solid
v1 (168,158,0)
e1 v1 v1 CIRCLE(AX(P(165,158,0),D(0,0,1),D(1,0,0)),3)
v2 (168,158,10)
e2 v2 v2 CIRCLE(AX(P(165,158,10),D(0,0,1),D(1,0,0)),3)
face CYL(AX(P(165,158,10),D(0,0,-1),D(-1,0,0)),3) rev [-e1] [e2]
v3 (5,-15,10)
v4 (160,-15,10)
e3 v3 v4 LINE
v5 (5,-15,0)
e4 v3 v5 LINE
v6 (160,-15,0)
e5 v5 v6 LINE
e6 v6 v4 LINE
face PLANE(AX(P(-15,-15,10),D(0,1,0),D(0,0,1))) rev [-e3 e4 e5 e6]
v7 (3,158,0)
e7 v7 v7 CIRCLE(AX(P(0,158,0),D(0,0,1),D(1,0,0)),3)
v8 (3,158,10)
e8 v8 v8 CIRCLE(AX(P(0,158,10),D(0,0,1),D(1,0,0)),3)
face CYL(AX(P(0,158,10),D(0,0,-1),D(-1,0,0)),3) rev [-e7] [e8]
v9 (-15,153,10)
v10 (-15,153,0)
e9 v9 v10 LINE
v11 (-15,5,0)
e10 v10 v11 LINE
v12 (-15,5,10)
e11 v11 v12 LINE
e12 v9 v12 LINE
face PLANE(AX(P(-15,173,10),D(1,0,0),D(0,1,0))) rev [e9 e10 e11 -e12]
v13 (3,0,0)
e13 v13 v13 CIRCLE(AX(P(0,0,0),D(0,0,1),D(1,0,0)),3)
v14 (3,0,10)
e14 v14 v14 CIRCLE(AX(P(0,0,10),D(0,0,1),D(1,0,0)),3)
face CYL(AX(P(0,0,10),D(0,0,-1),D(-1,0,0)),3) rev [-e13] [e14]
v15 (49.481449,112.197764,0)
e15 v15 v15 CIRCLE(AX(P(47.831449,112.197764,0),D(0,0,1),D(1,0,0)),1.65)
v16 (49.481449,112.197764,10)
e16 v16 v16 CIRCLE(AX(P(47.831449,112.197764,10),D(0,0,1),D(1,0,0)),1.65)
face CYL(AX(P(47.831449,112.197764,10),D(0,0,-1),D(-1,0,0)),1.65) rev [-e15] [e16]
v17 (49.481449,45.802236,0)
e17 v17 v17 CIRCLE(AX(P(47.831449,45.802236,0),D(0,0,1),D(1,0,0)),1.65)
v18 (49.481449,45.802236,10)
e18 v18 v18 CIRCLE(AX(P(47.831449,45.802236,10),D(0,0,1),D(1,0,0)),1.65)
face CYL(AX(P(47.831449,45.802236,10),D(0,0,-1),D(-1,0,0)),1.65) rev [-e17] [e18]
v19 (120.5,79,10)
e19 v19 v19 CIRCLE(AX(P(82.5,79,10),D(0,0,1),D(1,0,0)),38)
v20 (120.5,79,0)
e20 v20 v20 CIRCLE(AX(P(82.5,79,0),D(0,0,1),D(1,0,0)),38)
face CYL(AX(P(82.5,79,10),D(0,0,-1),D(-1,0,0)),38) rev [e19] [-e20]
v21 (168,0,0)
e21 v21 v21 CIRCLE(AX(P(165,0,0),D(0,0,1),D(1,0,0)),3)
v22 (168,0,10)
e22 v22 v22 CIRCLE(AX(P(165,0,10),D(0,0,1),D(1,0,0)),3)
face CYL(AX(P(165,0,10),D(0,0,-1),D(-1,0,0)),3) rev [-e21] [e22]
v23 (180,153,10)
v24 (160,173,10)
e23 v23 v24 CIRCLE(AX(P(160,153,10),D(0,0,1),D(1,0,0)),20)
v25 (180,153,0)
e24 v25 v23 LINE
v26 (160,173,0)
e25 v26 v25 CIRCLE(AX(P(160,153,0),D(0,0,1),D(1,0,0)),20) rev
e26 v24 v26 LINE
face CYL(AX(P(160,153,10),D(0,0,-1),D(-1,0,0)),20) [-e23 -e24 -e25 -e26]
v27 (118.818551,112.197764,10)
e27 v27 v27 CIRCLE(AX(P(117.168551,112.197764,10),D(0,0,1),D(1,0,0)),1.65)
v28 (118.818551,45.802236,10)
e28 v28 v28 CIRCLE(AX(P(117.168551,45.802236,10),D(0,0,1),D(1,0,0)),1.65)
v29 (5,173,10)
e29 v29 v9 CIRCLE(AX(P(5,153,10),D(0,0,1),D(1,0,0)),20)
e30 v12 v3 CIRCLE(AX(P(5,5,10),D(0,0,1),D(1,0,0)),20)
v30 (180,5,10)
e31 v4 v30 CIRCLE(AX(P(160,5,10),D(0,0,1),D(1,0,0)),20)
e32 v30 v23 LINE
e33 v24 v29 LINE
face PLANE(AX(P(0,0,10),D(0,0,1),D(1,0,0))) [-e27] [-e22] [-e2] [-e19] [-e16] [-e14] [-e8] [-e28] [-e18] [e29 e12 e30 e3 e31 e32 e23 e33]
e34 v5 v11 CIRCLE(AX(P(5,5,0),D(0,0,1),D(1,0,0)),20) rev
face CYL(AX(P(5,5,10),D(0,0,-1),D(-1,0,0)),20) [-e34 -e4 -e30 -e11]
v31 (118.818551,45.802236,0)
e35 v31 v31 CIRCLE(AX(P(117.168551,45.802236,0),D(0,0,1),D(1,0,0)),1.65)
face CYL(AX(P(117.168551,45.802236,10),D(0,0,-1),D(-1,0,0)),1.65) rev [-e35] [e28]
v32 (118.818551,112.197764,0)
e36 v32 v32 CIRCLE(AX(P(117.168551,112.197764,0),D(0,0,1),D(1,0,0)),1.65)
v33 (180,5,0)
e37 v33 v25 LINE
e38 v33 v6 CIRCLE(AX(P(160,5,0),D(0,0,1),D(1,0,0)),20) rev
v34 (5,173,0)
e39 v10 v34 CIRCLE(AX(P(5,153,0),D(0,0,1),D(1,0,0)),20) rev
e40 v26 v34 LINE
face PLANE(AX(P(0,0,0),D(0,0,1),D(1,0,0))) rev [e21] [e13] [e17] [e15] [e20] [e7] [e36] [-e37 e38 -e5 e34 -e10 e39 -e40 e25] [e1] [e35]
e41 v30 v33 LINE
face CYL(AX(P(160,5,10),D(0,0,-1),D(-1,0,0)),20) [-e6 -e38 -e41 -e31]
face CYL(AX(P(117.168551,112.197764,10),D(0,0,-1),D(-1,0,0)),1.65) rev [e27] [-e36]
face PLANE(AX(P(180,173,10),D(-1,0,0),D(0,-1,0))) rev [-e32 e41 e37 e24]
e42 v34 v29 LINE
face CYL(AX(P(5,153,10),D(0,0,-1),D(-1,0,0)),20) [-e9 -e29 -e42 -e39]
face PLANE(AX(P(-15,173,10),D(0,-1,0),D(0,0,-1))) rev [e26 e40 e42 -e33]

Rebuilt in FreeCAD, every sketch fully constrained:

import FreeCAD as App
import Part
import Sketcher
from FreeCAD import Vector


def edges_at(feature, points):
    """Names of the edges that pass closest to the given points."""
    edges = feature.Shape.Edges
    near = lambda p: min(range(len(edges)), key=lambda i: edges[i].distToShape(Part.Vertex(*p))[0])
    return sorted({f"Edge{near(p) + 1}" for p in points})

doc = App.newDocument("Part")
body = doc.addObject("PartDesign::Body", "Body")

# Sketch on XY plane
sketch1 = body.newObject("Sketcher::SketchObject", "Sketch")
sketch1.AttachmentSupport = (doc.getObject("XY_Plane"), [""])
sketch1.MapMode = "FlatFace"
sketch1.addGeometry([
    Part.LineSegment(Vector(-15, 173, 0), Vector(-15, -15, 0)),  # 0
    Part.LineSegment(Vector(-15, -15, 0), Vector(180, -15, 0)),  # 1
    Part.LineSegment(Vector(180, -15, 0), Vector(180, 173, 0)),  # 2
    Part.LineSegment(Vector(180, 173, 0), Vector(-15, 173, 0)),  # 3
    Part.Circle(Vector(0, 0, 0), Vector(0, 0, 1), 3),  # 4
    Part.Circle(Vector(47.8, 45.8, 0), Vector(0, 0, 1), 1.6),  # 5
    Part.Circle(Vector(165, 0, 0), Vector(0, 0, 1), 3),  # 6
    Part.Circle(Vector(117.2, 45.8, 0), Vector(0, 0, 1), 1.6),  # 7
    Part.Circle(Vector(47.8, 112.2, 0), Vector(0, 0, 1), 1.6),  # 8
    Part.Circle(Vector(0, 158, 0), Vector(0, 0, 1), 3),  # 9
    Part.Circle(Vector(82.5, 79, 0), Vector(0, 0, 1), 38),  # 10
    Part.Circle(Vector(117.2, 112.2, 0), Vector(0, 0, 1), 1.6),  # 11
    Part.Circle(Vector(165, 158, 0), Vector(0, 0, 1), 3),  # 12
], False)
sketch1.addConstraint([
    Sketcher.Constraint("Coincident", 0, 2, 1, 1),
    Sketcher.Constraint("Coincident", 1, 2, 2, 1),
    Sketcher.Constraint("Coincident", 2, 2, 3, 1),
    Sketcher.Constraint("Coincident", 3, 2, 0, 1),
    Sketcher.Constraint("Vertical", 0),
    Sketcher.Constraint("Horizontal", 1),
    Sketcher.Constraint("Vertical", 2),
    Sketcher.Constraint("Horizontal", 3),
    Sketcher.Constraint("Coincident", 4, 3, -1, 1),
    Sketcher.Constraint("Equal", 4, 6),
    Sketcher.Constraint("Equal", 5, 7),
    Sketcher.Constraint("Equal", 7, 8),
    Sketcher.Constraint("Equal", 6, 9),
    Sketcher.Constraint("Equal", 8, 11),
    Sketcher.Constraint("Equal", 9, 12),
    Sketcher.Constraint("PointOnObject", 6, 3, -1),
    Sketcher.Constraint("PointOnObject", 9, 3, -2),
    Sketcher.Constraint("Horizontal", 5, 3, 7, 3),
    Sketcher.Constraint("Horizontal", 8, 3, 11, 3),
    Sketcher.Constraint("Horizontal", 9, 3, 12, 3),
    Sketcher.Constraint("Vertical", 5, 3, 8, 3),
    Sketcher.Constraint("Vertical", 7, 3, 11, 3),
    Sketcher.Constraint("Vertical", 6, 3, 12, 3),
    Sketcher.Constraint("Diameter", 4, 6.0),
    Sketcher.Constraint("Diameter", 10, 76.0),
    Sketcher.Constraint("Diameter", 5, 3.3),
    Sketcher.Constraint("DistanceX", 1, 1, 1, 2, 195.0),
    Sketcher.Constraint("DistanceY", 0, 2, 0, 1, 188.0),
    Sketcher.Constraint("DistanceX", -1, 1, 6, 3, 165.0),
    Sketcher.Constraint("DistanceY", -1, 1, 9, 3, 158.0),
    Sketcher.Constraint("DistanceY", -1, 1, 10, 3, 79.0),
    Sketcher.Constraint("DistanceX", 0, 2, -1, 1, 15.0),
    Sketcher.Constraint("DistanceY", 0, 2, -1, 1, 15.0),
    Sketcher.Constraint("DistanceX", -1, 1, 10, 3, 82.5),
    Sketcher.Constraint("DistanceX", -1, 1, 5, 3, 47.831449),
    Sketcher.Constraint("DistanceX", -1, 1, 7, 3, 117.168551),
    Sketcher.Constraint("DistanceY", 5, 3, 8, 3, 66.395529),
    Sketcher.Constraint("DistanceY", -1, 1, 5, 3, 45.802236),
])
pad1 = body.newObject("PartDesign::Pad", "Pad")
pad1.Profile = sketch1
pad1.Length = 10
doc.recompute()

fillet = body.newObject("PartDesign::Fillet", "Fillet")
fillet.Base = (pad1, edges_at(pad1, [
    (-15, 173, 5),
    (180, 173, 5),
    (180, -15, 5),
    (-15, -15, 5),
]))
fillet.Radius = 20

doc.recompute()
